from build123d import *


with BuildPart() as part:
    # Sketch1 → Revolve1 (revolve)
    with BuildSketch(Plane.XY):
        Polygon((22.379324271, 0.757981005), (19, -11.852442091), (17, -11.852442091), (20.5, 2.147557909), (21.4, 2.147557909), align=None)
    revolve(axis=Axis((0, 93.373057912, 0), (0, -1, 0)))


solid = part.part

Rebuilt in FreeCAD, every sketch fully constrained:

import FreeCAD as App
import Part
import Sketcher

V = App.Vector

doc = App.newDocument("Part")
body = doc.addObject("PartDesign::Body", "Body")

# Sketch on XY plane
sketch1 = body.newObject("Sketcher::SketchObject", "Sketch")
sketch1.AttachmentSupport = (doc.getObject("XY_Plane"), [""])
sketch1.MapMode = "FlatFace"
sketch1.addGeometry([
    Part.LineSegment(V(19, -11.852442, 0), V(22.379324, 0.757981, 0)),  # 0
    Part.LineSegment(V(22.379324, 0.757981, 0), V(21.4, 2.147558, 0)),  # 1
    Part.LineSegment(V(21.4, 2.147558, 0), V(20.5, 2.147558, 0)),  # 2
    Part.LineSegment(V(20.5, 2.147558, 0), V(17, -11.852442, 0)),  # 3
    Part.LineSegment(V(17, -11.852442, 0), V(19, -11.852442, 0)),  # 4
], False)
sketch1.addConstraint([
    Sketcher.Constraint("Coincident", 0, 2, 1, 1),
    Sketcher.Constraint("Coincident", 1, 2, 2, 1),
    Sketcher.Constraint("Coincident", 2, 2, 3, 1),
    Sketcher.Constraint("Coincident", 3, 2, 4, 1),
    Sketcher.Constraint("Coincident", 4, 2, 0, 1),
    Sketcher.Constraint("Horizontal", 2),
    Sketcher.Constraint("Horizontal", 4),
    Sketcher.Constraint("DistanceX", 4, 1, 4, 2, 2.0),
    Sketcher.Constraint("DistanceX", 2, 2, 2, 1, 0.9),
    Sketcher.Constraint("DistanceX", -1, 1, 3, 2, 17.0),
    Sketcher.Constraint("DistanceY", 3, 2, 2, 2, 14.0),
    Sketcher.Constraint("Distance", 1, 1.7),
    Sketcher.Constraint("DistanceX", -1, 1, 1, 2, 21.4),
    Sketcher.Constraint("DistanceY", -1, 1, 0, 2, 0.757981),
    Sketcher.Constraint("Distance", 0, 13.055367),
])
revolution = body.newObject("PartDesign::Revolution", "Revolution")
revolution.Profile = sketch1
revolution.ReferenceAxis = (sketch1, ["V_Axis"])
revolution.Angle = 360

doc.recompute()
